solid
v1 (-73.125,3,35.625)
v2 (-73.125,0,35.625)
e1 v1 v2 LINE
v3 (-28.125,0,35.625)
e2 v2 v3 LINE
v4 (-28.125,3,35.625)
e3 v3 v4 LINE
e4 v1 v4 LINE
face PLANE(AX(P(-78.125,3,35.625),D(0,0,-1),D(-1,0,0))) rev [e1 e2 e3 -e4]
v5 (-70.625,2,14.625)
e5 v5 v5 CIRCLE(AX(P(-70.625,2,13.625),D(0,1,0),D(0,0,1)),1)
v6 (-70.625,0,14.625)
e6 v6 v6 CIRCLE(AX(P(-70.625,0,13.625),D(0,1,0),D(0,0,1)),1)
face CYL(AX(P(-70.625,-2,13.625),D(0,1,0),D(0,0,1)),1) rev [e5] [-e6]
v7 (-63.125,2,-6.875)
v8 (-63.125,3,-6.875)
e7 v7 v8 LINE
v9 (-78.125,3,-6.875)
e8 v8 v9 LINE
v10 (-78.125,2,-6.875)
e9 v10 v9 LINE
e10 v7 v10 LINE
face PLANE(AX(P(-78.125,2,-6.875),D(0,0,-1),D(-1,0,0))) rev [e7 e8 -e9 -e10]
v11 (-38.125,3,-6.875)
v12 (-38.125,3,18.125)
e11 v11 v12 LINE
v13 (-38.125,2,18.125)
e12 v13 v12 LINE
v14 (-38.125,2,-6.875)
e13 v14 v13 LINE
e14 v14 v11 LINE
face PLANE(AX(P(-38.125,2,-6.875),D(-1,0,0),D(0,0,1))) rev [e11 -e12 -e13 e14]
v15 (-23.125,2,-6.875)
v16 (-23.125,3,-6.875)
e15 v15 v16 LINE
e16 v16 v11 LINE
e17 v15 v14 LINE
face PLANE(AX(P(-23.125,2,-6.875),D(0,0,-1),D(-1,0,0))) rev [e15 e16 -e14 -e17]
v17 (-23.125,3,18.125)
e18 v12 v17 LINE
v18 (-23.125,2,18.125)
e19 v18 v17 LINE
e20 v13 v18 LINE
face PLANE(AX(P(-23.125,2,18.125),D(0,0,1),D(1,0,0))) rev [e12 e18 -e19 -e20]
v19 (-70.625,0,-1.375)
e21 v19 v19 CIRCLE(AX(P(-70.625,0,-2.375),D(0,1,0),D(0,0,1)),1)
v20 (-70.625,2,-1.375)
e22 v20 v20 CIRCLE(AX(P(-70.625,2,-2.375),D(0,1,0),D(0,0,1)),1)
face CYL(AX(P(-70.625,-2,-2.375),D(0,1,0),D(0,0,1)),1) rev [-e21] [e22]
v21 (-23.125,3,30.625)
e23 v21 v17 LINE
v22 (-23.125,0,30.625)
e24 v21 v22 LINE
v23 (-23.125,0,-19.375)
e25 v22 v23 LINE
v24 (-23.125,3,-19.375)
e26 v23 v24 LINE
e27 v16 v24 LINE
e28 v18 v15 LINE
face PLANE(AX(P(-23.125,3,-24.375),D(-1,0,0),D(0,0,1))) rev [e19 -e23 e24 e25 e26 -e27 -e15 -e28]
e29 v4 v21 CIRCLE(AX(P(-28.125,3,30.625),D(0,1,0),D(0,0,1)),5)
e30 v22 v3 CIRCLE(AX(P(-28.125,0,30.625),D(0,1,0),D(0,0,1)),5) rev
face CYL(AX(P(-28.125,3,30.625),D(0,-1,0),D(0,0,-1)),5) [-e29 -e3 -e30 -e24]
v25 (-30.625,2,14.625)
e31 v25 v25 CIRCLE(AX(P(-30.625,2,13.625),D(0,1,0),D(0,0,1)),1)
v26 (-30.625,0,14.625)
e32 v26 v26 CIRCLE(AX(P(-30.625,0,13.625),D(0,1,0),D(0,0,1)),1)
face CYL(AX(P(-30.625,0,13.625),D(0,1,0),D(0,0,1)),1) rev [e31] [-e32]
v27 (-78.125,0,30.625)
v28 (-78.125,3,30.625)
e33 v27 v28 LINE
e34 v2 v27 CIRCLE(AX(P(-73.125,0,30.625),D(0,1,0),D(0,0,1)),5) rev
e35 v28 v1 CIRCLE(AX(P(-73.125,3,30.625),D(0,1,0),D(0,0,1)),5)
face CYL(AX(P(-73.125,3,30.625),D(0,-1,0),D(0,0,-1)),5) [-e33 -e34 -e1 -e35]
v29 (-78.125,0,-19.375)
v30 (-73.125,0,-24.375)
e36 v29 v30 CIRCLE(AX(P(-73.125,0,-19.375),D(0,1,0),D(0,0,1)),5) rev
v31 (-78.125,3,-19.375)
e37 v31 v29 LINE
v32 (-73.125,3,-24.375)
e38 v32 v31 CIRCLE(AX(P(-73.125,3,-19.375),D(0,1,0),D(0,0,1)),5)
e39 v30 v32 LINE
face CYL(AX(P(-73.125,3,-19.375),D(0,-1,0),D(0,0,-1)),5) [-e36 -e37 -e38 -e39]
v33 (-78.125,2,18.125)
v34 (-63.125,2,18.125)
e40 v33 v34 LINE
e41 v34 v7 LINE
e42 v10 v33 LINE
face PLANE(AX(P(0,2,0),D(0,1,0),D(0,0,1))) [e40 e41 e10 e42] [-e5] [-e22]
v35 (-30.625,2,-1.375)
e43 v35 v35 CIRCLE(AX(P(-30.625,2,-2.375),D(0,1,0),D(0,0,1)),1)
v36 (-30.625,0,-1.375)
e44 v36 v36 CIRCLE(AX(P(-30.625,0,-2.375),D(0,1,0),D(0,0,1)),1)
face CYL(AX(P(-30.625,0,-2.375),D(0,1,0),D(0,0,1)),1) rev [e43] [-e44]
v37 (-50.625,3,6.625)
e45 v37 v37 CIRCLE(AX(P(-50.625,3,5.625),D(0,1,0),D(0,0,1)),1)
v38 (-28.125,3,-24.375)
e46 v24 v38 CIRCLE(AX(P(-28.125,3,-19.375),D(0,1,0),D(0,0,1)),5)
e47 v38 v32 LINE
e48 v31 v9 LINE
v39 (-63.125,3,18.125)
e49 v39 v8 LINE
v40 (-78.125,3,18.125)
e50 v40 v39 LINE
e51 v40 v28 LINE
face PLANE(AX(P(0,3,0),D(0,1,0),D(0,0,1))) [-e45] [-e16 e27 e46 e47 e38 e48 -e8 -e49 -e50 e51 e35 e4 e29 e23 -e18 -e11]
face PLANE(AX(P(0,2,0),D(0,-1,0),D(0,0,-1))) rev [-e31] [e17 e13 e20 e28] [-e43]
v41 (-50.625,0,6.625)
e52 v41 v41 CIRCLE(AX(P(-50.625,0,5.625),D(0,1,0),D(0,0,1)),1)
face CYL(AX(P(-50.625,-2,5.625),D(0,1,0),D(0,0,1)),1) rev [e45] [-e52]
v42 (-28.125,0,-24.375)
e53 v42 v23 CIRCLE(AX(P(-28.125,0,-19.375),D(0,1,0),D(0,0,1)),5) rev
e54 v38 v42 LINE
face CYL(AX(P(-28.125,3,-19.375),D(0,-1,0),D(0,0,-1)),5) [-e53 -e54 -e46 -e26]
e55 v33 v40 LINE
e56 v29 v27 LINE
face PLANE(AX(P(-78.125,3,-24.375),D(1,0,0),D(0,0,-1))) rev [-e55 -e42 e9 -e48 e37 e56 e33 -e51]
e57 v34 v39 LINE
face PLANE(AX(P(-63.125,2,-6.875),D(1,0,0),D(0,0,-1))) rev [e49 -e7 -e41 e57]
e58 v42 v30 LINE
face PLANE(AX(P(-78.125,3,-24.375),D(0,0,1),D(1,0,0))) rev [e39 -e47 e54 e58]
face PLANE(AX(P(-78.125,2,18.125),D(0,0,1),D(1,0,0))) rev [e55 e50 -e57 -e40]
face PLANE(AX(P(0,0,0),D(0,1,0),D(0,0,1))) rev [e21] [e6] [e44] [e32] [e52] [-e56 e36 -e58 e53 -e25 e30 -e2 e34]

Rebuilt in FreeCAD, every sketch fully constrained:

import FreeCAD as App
import Part
import Sketcher


def edges_at(feature, points):
    """Names of the edges that pass closest to the given points."""
    edges = feature.Shape.Edges
    near = lambda p: min(range(len(edges)), key=lambda i: edges[i].distToShape(Part.Vertex(*p))[0])
    return sorted({f"Edge{near(p) + 1}" for p in points})

doc = App.newDocument("Part")
params = doc.addObject("Spreadsheet::Sheet", "Params")
for row, (alias, value) in enumerate([
    ("sketch1_width", "55 mm"),
    ("sketch1_height", "60 mm"),
    ("pad1_length", "3 mm"),
    ("sketch2_width", "15 mm"),
    ("sketch2_height", "25 mm"),
    ("pocket1_length", "1 mm"),
    ("sketch3_diameter", "2 mm"),
    ("pocket2_length", "5 mm"),
    ("fillet_radius", "5 mm"),
    ("sketch4_diameter", "2 mm"),
    ("pocket3_length", "5 mm"),
    ("sketch5_width", "15 mm"),
    ("sketch5_height", "25 mm"),
    ("pocket4_length", "1 mm"),
    ("sketch6_diameter", "2 mm"),
    ("pocket5_length", "2 mm"),
], start=1):
    params.set(f"A{row}", alias)
    params.set(f"B{row}", "=" + value)
    params.setAlias(f"B{row}", alias)

body = doc.addObject("PartDesign::Body", "Body")

sketch1 = body.newObject("Sketcher::SketchObject", "Sketch")
sketch1.AttachmentSupport = (doc.getObject("XZ_Plane"), [""])
sketch1.MapMode = "FlatFace"
sketch1.addGeometry([
    Part.LineSegment(App.Vector(-78.125, -24.375, 0), App.Vector(-78.125, 35.625, 0)),
    Part.LineSegment(App.Vector(-78.125, 35.625, 0), App.Vector(-23.125, 35.625, 0)),
    Part.LineSegment(App.Vector(-23.125, 35.625, 0), App.Vector(-23.125, -24.375, 0)),
    Part.LineSegment(App.Vector(-23.125, -24.375, 0), App.Vector(-78.125, -24.375, 0)),
], False)
sketch1.addConstraint([
    Sketcher.Constraint("Coincident", 0, 2, 1, 1),
    Sketcher.Constraint("Coincident", 1, 2, 2, 1),
    Sketcher.Constraint("Coincident", 2, 2, 3, 1),
    Sketcher.Constraint("Coincident", 3, 2, 0, 1),
    Sketcher.Constraint("Vertical", 0),
    Sketcher.Constraint("Horizontal", 1),
    Sketcher.Constraint("Vertical", 2),
    Sketcher.Constraint("Horizontal", 3),
    Sketcher.Constraint("DistanceX", 1, 1, 1, 2, 55.0),
    Sketcher.Constraint("DistanceY", 0, 1, 0, 2, 60.0),
    Sketcher.Constraint("DistanceX", 0, 2, -1, 1, 78.125),
    Sketcher.Constraint("DistanceY", -1, 1, 0, 2, 35.625),
])
sketch1.setExpression("Constraints[8]", "Params.sketch1_width")
sketch1.setExpression("Constraints[9]", "Params.sketch1_height")
pad1 = body.newObject("PartDesign::Pad", "Pad")
pad1.Profile = sketch1
pad1.setExpression("Length", "Params.pad1_length")
pad1.Reversed = True

sketch2 = body.newObject("Sketcher::SketchObject", "Sketch001")
sketch2.AttachmentSupport = (doc.getObject("XZ_Plane"), [""])
sketch2.MapMode = "FlatFace"
sketch2.AttachmentOffset = App.Placement(App.Vector(0, 0, -3), App.Rotation())
sketch2.addGeometry([
    Part.LineSegment(App.Vector(-78.125, -6.875, 0), App.Vector(-78.125, 18.125, 0)),
    Part.LineSegment(App.Vector(-78.125, 18.125, 0), App.Vector(-63.125, 18.125, 0)),
    Part.LineSegment(App.Vector(-63.125, 18.125, 0), App.Vector(-63.125, -6.875, 0)),
    Part.LineSegment(App.Vector(-63.125, -6.875, 0), App.Vector(-78.125, -6.875, 0)),
], False)
sketch2.addConstraint([
    Sketcher.Constraint("Coincident", 0, 2, 1, 1),
    Sketcher.Constraint("Coincident", 1, 2, 2, 1),
    Sketcher.Constraint("Coincident", 2, 2, 3, 1),
    Sketcher.Constraint("Coincident", 3, 2, 0, 1),
    Sketcher.Constraint("Vertical", 0),
    Sketcher.Constraint("Horizontal", 1),
    Sketcher.Constraint("Vertical", 2),
    Sketcher.Constraint("Horizontal", 3),
    Sketcher.Constraint("DistanceX", 1, 1, 1, 2, 15.0),
    Sketcher.Constraint("DistanceY", 0, 1, 0, 2, 25.0),
    Sketcher.Constraint("DistanceX", 0, 2, -1, 1, 78.125),
    Sketcher.Constraint("DistanceY", -1, 1, 0, 2, 18.125),
])
sketch2.setExpression("Constraints[8]", "Params.sketch2_width")
sketch2.setExpression("Constraints[9]", "Params.sketch2_height")
pocket1 = body.newObject("PartDesign::Pocket", "Pocket")
pocket1.Profile = sketch2
pocket1.setExpression("Length", "Params.pocket1_length")
pocket1.Reversed = True

sketch3 = body.newObject("Sketcher::SketchObject", "Sketch002")
sketch3.AttachmentSupport = (doc.getObject("XZ_Plane"), [""])
sketch3.MapMode = "FlatFace"
sketch3.AttachmentOffset = App.Placement(App.Vector(0, 0, -3), App.Rotation())
sketch3.addGeometry([
    Part.Circle(App.Vector(-70.625, -2.375, 0), App.Vector(0, 0, 1), 1),
    Part.Circle(App.Vector(-70.625, 13.625, 0), App.Vector(0, 0, 1), 1),
], False)
sketch3.addConstraint([
    Sketcher.Constraint("Equal", 0, 1),
    Sketcher.Constraint("Vertical", 0, 3, 1, 3),
    Sketcher.Constraint("Diameter", 0, 2.0),
    Sketcher.Constraint("DistanceY", 0, 3, 1, 3, 16.0),
    Sketcher.Constraint("DistanceX", 0, 3, -1, 1, 70.625),
    Sketcher.Constraint("DistanceY", 0, 3, -1, 1, 2.375),
])
sketch3.setExpression("Constraints[2]", "Params.sketch3_diameter")
pocket2 = body.newObject("PartDesign::Pocket", "Pocket001")
pocket2.Profile = sketch3
pocket2.setExpression("Length", "Params.pocket2_length")
pocket2.Reversed = True
doc.recompute()

fillet = body.newObject("PartDesign::Fillet", "Fillet")
fillet.Base = (pocket2, edges_at(pocket2, [
    (-78.125, 1.5, -24.375),
    (-23.125, 1.5, -24.375),
    (-23.125, 1.5, 35.625),
    (-78.125, 1.5, 35.625),
]))
fillet.setExpression("Radius", "Params.fillet_radius")

sketch4 = body.newObject("Sketcher::SketchObject", "Sketch003")
sketch4.AttachmentSupport = (doc.getObject("XZ_Plane"), [""])
sketch4.MapMode = "FlatFace"
sketch4.AttachmentOffset = App.Placement(App.Vector(0, 0, -3), App.Rotation())
sketch4.addGeometry(Part.Circle(App.Vector(-50.625, 5.625, 0), App.Vector(0, 0, 1), 1), False)
sketch4.addConstraint([
    Sketcher.Constraint("Diameter", 0, 2.0),
    Sketcher.Constraint("DistanceX", 0, 3, -1, 1, 50.625),
    Sketcher.Constraint("DistanceY", -1, 1, 0, 3, 5.625),
])
sketch4.setExpression("Constraints[0]", "Params.sketch4_diameter")
pocket3 = body.newObject("PartDesign::Pocket", "Pocket002")
pocket3.Profile = sketch4
pocket3.setExpression("Length", "Params.pocket3_length")
pocket3.Reversed = True

sketch5 = body.newObject("Sketcher::SketchObject", "Sketch004")
sketch5.AttachmentSupport = (doc.getObject("XZ_Plane"), [""])
sketch5.MapMode = "FlatFace"
sketch5.AttachmentOffset = App.Placement(App.Vector(0, 0, -3), App.Rotation())
sketch5.addGeometry([
    Part.LineSegment(App.Vector(-38.125, -6.875, 0), App.Vector(-38.125, 18.125, 0)),
    Part.LineSegment(App.Vector(-38.125, 18.125, 0), App.Vector(-23.125, 18.125, 0)),
    Part.LineSegment(App.Vector(-23.125, 18.125, 0), App.Vector(-23.125, -6.875, 0)),
    Part.LineSegment(App.Vector(-23.125, -6.875, 0), App.Vector(-38.125, -6.875, 0)),
], False)
sketch5.addConstraint([
    Sketcher.Constraint("Coincident", 0, 2, 1, 1),
    Sketcher.Constraint("Coincident", 1, 2, 2, 1),
    Sketcher.Constraint("Coincident", 2, 2, 3, 1),
    Sketcher.Constraint("Coincident", 3, 2, 0, 1),
    Sketcher.Constraint("Vertical", 0),
    Sketcher.Constraint("Horizontal", 1),
    Sketcher.Constraint("Vertical", 2),
    Sketcher.Constraint("Horizontal", 3),
    Sketcher.Constraint("DistanceX", 1, 1, 1, 2, 15.0),
    Sketcher.Constraint("DistanceY", 0, 1, 0, 2, 25.0),
    Sketcher.Constraint("DistanceX", 0, 2, -1, 1, 38.125),
    Sketcher.Constraint("DistanceY", -1, 1, 0, 2, 18.125),
])
sketch5.setExpression("Constraints[8]", "Params.sketch5_width")
sketch5.setExpression("Constraints[9]", "Params.sketch5_height")
pocket4 = body.newObject("PartDesign::Pocket", "Pocket003")
pocket4.Profile = sketch5
pocket4.setExpression("Length", "Params.pocket4_length")
pocket4.Reversed = True

sketch6 = body.newObject("Sketcher::SketchObject", "Sketch005")
sketch6.AttachmentSupport = (doc.getObject("XZ_Plane"), [""])
sketch6.MapMode = "FlatFace"
sketch6.AttachmentOffset = App.Placement(App.Vector(0, 0, -2), App.Rotation())
sketch6.addGeometry([
    Part.Circle(App.Vector(-30.625, -2.375, 0), App.Vector(0, 0, 1), 1),
    Part.Circle(App.Vector(-30.625, 13.625, 0), App.Vector(0, 0, 1), 1),
], False)
sketch6.addConstraint([
    Sketcher.Constraint("Equal", 0, 1),
    Sketcher.Constraint("Vertical", 0, 3, 1, 3),
    Sketcher.Constraint("Diameter", 0, 2.0),
    Sketcher.Constraint("DistanceY", 0, 3, 1, 3, 16.0),
    Sketcher.Constraint("DistanceX", 0, 3, -1, 1, 30.625),
    Sketcher.Constraint("DistanceY", 0, 3, -1, 1, 2.375),
])
sketch6.setExpression("Constraints[2]", "Params.sketch6_diameter")
pocket5 = body.newObject("PartDesign::Pocket", "Pocket004")
pocket5.Profile = sketch6
pocket5.setExpression("Length", "Params.pocket5_length")
pocket5.Reversed = True

doc.recompute()
